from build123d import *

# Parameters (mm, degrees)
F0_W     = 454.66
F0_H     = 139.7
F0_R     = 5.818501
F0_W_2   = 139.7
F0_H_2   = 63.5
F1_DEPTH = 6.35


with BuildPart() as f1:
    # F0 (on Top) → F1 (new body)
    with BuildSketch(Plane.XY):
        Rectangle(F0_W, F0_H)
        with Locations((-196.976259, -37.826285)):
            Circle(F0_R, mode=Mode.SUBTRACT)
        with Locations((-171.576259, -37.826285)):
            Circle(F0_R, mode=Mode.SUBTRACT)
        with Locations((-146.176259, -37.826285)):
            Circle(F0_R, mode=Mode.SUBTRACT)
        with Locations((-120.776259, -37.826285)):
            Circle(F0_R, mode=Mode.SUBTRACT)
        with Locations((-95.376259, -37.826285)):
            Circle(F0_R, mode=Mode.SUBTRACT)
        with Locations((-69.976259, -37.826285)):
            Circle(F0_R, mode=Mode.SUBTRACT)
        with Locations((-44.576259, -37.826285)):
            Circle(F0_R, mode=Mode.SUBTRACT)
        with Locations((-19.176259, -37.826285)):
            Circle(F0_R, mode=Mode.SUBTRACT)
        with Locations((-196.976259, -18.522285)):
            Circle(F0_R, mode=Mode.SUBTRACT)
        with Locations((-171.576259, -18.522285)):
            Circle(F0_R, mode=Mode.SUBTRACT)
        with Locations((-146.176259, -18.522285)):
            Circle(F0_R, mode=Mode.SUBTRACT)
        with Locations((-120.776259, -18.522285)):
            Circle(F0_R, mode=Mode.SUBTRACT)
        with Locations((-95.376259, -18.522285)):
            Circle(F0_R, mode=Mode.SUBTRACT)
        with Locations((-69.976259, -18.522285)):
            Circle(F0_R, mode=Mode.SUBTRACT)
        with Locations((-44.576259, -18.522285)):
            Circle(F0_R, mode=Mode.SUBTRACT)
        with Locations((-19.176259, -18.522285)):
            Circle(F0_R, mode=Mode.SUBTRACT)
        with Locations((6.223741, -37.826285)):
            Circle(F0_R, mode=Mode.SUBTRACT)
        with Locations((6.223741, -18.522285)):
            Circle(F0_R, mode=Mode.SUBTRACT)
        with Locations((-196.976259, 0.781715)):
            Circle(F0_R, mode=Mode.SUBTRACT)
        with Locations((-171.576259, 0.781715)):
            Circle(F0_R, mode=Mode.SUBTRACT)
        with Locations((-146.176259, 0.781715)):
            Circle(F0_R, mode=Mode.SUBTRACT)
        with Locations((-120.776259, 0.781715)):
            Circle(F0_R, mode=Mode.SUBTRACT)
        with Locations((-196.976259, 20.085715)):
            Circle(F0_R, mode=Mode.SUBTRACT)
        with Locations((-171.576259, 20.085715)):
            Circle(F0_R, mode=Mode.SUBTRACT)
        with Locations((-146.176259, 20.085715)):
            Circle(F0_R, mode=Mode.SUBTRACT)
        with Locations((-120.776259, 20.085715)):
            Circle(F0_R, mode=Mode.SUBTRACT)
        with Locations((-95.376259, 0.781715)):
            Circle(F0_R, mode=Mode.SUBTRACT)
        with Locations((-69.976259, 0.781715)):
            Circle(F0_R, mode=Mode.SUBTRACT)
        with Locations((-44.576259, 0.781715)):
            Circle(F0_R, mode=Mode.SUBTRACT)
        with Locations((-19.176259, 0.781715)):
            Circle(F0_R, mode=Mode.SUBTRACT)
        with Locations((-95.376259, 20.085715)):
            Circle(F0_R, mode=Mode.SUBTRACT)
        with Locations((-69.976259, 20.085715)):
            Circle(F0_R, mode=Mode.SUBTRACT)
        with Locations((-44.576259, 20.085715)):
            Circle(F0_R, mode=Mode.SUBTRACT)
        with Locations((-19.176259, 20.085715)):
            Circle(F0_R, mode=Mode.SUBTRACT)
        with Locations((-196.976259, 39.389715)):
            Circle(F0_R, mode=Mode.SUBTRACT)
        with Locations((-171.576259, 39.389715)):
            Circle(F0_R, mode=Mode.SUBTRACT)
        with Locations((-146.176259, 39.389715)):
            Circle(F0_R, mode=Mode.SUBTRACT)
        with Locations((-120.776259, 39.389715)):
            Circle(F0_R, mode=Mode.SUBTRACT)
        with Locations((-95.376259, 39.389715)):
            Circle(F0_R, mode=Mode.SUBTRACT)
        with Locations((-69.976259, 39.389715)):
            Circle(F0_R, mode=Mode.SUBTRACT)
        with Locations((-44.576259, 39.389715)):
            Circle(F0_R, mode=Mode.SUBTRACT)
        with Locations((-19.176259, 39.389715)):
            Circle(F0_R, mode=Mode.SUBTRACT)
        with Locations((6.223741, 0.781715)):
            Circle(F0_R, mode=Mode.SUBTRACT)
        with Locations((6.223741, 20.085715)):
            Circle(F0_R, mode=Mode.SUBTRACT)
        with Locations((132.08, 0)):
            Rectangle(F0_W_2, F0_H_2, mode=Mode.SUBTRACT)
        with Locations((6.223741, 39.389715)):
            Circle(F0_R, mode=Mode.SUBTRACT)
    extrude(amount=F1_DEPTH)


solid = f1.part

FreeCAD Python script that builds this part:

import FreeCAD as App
import Part
import Sketcher

V = App.Vector
Q = App.Units.Quantity


def add_polygon(sketch, points):
    """Adds a closed chain of lines whose ends are joined by coincident constraints."""
    first, n = sketch.GeometryCount, len(points)
    for a, b in zip(points, points[1:] + points[:1]):
        sketch.addGeometry(Part.LineSegment(App.Vector(*a, 0), App.Vector(*b, 0)), False)
    for i in range(n):
        sketch.addConstraint(Sketcher.Constraint("Coincident", first + i, 2, first + (i + 1) % n, 1))

doc = App.newDocument("Part")
body = doc.addObject("PartDesign::Body", "Body")

# Sketch on XY plane
sketch1 = body.newObject("Sketcher::SketchObject", "Sketch")
sketch1.AttachmentSupport = (doc.getObject("XY_Plane"), [""])
sketch1.MapMode = "FlatFace"
add_polygon(sketch1, [(-227, 70), (-227, -70), (227, -70), (227, 70)])  # lines 0-3
sketch1.addGeometry(Part.Circle(V(-197, -38, 0), V(0, 0, 1), 6), False)  # 4
sketch1.addGeometry(Part.Circle(V(-172, -38, 0), V(0, 0, 1), 6), False)  # 5
sketch1.addGeometry(Part.Circle(V(-146, -38, 0), V(0, 0, 1), 6), False)  # 6
sketch1.addGeometry(Part.Circle(V(-121, -38, 0), V(0, 0, 1), 6), False)  # 7
sketch1.addGeometry(Part.Circle(V(-95, -38, 0), V(0, 0, 1), 6), False)  # 8
sketch1.addGeometry(Part.Circle(V(-70, -38, 0), V(0, 0, 1), 6), False)  # 9
sketch1.addGeometry(Part.Circle(V(-45, -38, 0), V(0, 0, 1), 6), False)  # 10
sketch1.addGeometry(Part.Circle(V(-19, -38, 0), V(0, 0, 1), 6), False)  # 11
sketch1.addGeometry(Part.Circle(V(-197, -19, 0), V(0, 0, 1), 6), False)  # 12
sketch1.addGeometry(Part.Circle(V(-172, -19, 0), V(0, 0, 1), 6), False)  # 13
sketch1.addGeometry(Part.Circle(V(-146, -19, 0), V(0, 0, 1), 6), False)  # 14
sketch1.addGeometry(Part.Circle(V(-121, -19, 0), V(0, 0, 1), 6), False)  # 15
sketch1.addGeometry(Part.Circle(V(-197, 1, 0), V(0, 0, 1), 6), False)  # 16
sketch1.addGeometry(Part.Circle(V(-172, 1, 0), V(0, 0, 1), 6), False)  # 17
sketch1.addGeometry(Part.Circle(V(-146, 1, 0), V(0, 0, 1), 6), False)  # 18
sketch1.addGeometry(Part.Circle(V(-121, 1, 0), V(0, 0, 1), 6), False)  # 19
sketch1.addGeometry(Part.Circle(V(-95, -19, 0), V(0, 0, 1), 6), False)  # 20
sketch1.addGeometry(Part.Circle(V(-70, -19, 0), V(0, 0, 1), 6), False)  # 21
sketch1.addGeometry(Part.Circle(V(-45, -19, 0), V(0, 0, 1), 6), False)  # 22
sketch1.addGeometry(Part.Circle(V(-19, -19, 0), V(0, 0, 1), 6), False)  # 23
sketch1.addGeometry(Part.Circle(V(-95, 1, 0), V(0, 0, 1), 6), False)  # 24
sketch1.addGeometry(Part.Circle(V(-70, 1, 0), V(0, 0, 1), 6), False)  # 25
sketch1.addGeometry(Part.Circle(V(-45, 1, 0), V(0, 0, 1), 6), False)  # 26
sketch1.addGeometry(Part.Circle(V(-19, 1, 0), V(0, 0, 1), 6), False)  # 27
sketch1.addGeometry(Part.Circle(V(6, -38, 0), V(0, 0, 1), 6), False)  # 28
sketch1.addGeometry(Part.Circle(V(6, -19, 0), V(0, 0, 1), 6), False)  # 29
sketch1.addGeometry(Part.Circle(V(6, 1, 0), V(0, 0, 1), 6), False)  # 30
add_polygon(sketch1, [(202, -32), (62, -32), (62, 32), (202, 32)])  # lines 31-34
sketch1.addGeometry(Part.Circle(V(-197, 20, 0), V(0, 0, 1), 6), False)  # 35
sketch1.addGeometry(Part.Circle(V(-172, 20, 0), V(0, 0, 1), 6), False)  # 36
sketch1.addGeometry(Part.Circle(V(-146, 20, 0), V(0, 0, 1), 6), False)  # 37
sketch1.addGeometry(Part.Circle(V(-121, 20, 0), V(0, 0, 1), 6), False)  # 38
sketch1.addGeometry(Part.Circle(V(-95, 20, 0), V(0, 0, 1), 6), False)  # 39
sketch1.addGeometry(Part.Circle(V(-70, 20, 0), V(0, 0, 1), 6), False)  # 40
sketch1.addGeometry(Part.Circle(V(-45, 20, 0), V(0, 0, 1), 6), False)  # 41
sketch1.addGeometry(Part.Circle(V(-19, 20, 0), V(0, 0, 1), 6), False)  # 42
sketch1.addGeometry(Part.Circle(V(-197, 39, 0), V(0, 0, 1), 6), False)  # 43
sketch1.addGeometry(Part.Circle(V(-172, 39, 0), V(0, 0, 1), 6), False)  # 44
sketch1.addGeometry(Part.Circle(V(-146, 39, 0), V(0, 0, 1), 6), False)  # 45
sketch1.addGeometry(Part.Circle(V(-121, 39, 0), V(0, 0, 1), 6), False)  # 46
sketch1.addGeometry(Part.Circle(V(-95, 39, 0), V(0, 0, 1), 6), False)  # 47
sketch1.addGeometry(Part.Circle(V(-70, 39, 0), V(0, 0, 1), 6), False)  # 48
sketch1.addGeometry(Part.Circle(V(-45, 39, 0), V(0, 0, 1), 6), False)  # 49
sketch1.addGeometry(Part.Circle(V(-19, 39, 0), V(0, 0, 1), 6), False)  # 50
sketch1.addGeometry(Part.Circle(V(6, 20, 0), V(0, 0, 1), 6), False)  # 51
sketch1.addGeometry(Part.Circle(V(6, 39, 0), V(0, 0, 1), 6), False)  # 52
sketch1.addConstraint(Sketcher.Constraint("Vertical", 0))
sketch1.addConstraint(Sketcher.Constraint("Horizontal", 1))
sketch1.addConstraint(Sketcher.Constraint("Vertical", 2))
sketch1.addConstraint(Sketcher.Constraint("Horizontal", 3))
sketch1.addConstraint(Sketcher.Constraint("Horizontal", 31))
sketch1.addConstraint(Sketcher.Constraint("Vertical", 32))
sketch1.addConstraint(Sketcher.Constraint("Horizontal", 33))
sketch1.addConstraint(Sketcher.Constraint("Vertical", 34))
sketch1.addConstraint(Sketcher.Constraint("Equal", 4, 5))
sketch1.addConstraint(Sketcher.Constraint("Equal", 5, 6))
sketch1.addConstraint(Sketcher.Constraint("Equal", 6, 7))
sketch1.addConstraint(Sketcher.Constraint("Equal", 7, 8))
sketch1.addConstraint(Sketcher.Constraint("Equal", 8, 9))
sketch1.addConstraint(Sketcher.Constraint("Equal", 9, 10))
sketch1.addConstraint(Sketcher.Constraint("Equal", 10, 11))
sketch1.addConstraint(Sketcher.Constraint("Equal", 11, 12))
sketch1.addConstraint(Sketcher.Constraint("Equal", 12, 13))
sketch1.addConstraint(Sketcher.Constraint("Equal", 13, 14))
sketch1.addConstraint(Sketcher.Constraint("Equal", 14, 15))
sketch1.addConstraint(Sketcher.Constraint("Equal", 15, 16))
sketch1.addConstraint(Sketcher.Constraint("Equal", 16, 17))
sketch1.addConstraint(Sketcher.Constraint("Equal", 17, 18))
sketch1.addConstraint(Sketcher.Constraint("Equal", 18, 19))
sketch1.addConstraint(Sketcher.Constraint("Equal", 19, 20))
sketch1.addConstraint(Sketcher.Constraint("Equal", 20, 21))
sketch1.addConstraint(Sketcher.Constraint("Equal", 21, 22))
sketch1.addConstraint(Sketcher.Constraint("Equal", 22, 23))
sketch1.addConstraint(Sketcher.Constraint("Equal", 23, 24))
sketch1.addConstraint(Sketcher.Constraint("Equal", 24, 25))
sketch1.addConstraint(Sketcher.Constraint("Equal", 25, 26))
sketch1.addConstraint(Sketcher.Constraint("Equal", 26, 27))
sketch1.addConstraint(Sketcher.Constraint("Equal", 27, 28))
sketch1.addConstraint(Sketcher.Constraint("Equal", 28, 29))
sketch1.addConstraint(Sketcher.Constraint("Equal", 29, 30))
sketch1.addConstraint(Sketcher.Constraint("Equal", 30, 35))
sketch1.addConstraint(Sketcher.Constraint("Equal", 35, 36))
sketch1.addConstraint(Sketcher.Constraint("Equal", 36, 37))
sketch1.addConstraint(Sketcher.Constraint("Equal", 37, 38))
sketch1.addConstraint(Sketcher.Constraint("Equal", 38, 39))
sketch1.addConstraint(Sketcher.Constraint("Equal", 39, 40))
sketch1.addConstraint(Sketcher.Constraint("Equal", 40, 41))
sketch1.addConstraint(Sketcher.Constraint("Equal", 41, 42))
sketch1.addConstraint(Sketcher.Constraint("Equal", 42, 43))
sketch1.addConstraint(Sketcher.Constraint("Equal", 43, 44))
sketch1.addConstraint(Sketcher.Constraint("Equal", 44, 45))
sketch1.addConstraint(Sketcher.Constraint("Equal", 45, 46))
sketch1.addConstraint(Sketcher.Constraint("Equal", 46, 47))
sketch1.addConstraint(Sketcher.Constraint("Equal", 47, 48))
sketch1.addConstraint(Sketcher.Constraint("Equal", 48, 49))
sketch1.addConstraint(Sketcher.Constraint("Equal", 49, 50))
sketch1.addConstraint(Sketcher.Constraint("Equal", 50, 51))
sketch1.addConstraint(Sketcher.Constraint("Equal", 51, 52))
sketch1.addConstraint(Sketcher.Constraint("Symmetric", 0, 2, 2, 2, -1, 1))
sketch1.addConstraint(Sketcher.Constraint("Horizontal", 4, 3, 5, 3))
sketch1.addConstraint(Sketcher.Constraint("Horizontal", 5, 3, 6, 3))
sketch1.addConstraint(Sketcher.Constraint("Horizontal", 6, 3, 7, 3))
sketch1.addConstraint(Sketcher.Constraint("Horizontal", 7, 3, 8, 3))
sketch1.addConstraint(Sketcher.Constraint("Horizontal", 8, 3, 9, 3))
sketch1.addConstraint(Sketcher.Constraint("Horizontal", 9, 3, 10, 3))
sketch1.addConstraint(Sketcher.Constraint("Horizontal", 10, 3, 11, 3))
sketch1.addConstraint(Sketcher.Constraint("Horizontal", 12, 3, 13, 3))
sketch1.addConstraint(Sketcher.Constraint("Horizontal", 13, 3, 14, 3))
sketch1.addConstraint(Sketcher.Constraint("Horizontal", 14, 3, 15, 3))
sketch1.addConstraint(Sketcher.Constraint("Horizontal", 16, 3, 17, 3))
sketch1.addConstraint(Sketcher.Constraint("Horizontal", 17, 3, 18, 3))
sketch1.addConstraint(Sketcher.Constraint("Horizontal", 18, 3, 19, 3))
sketch1.addConstraint(Sketcher.Constraint("Horizontal", 15, 3, 20, 3))
sketch1.addConstraint(Sketcher.Constraint("Horizontal", 20, 3, 21, 3))
sketch1.addConstraint(Sketcher.Constraint("Horizontal", 21, 3, 22, 3))
sketch1.addConstraint(Sketcher.Constraint("Horizontal", 22, 3, 23, 3))
sketch1.addConstraint(Sketcher.Constraint("Horizontal", 19, 3, 24, 3))
sketch1.addConstraint(Sketcher.Constraint("Horizontal", 24, 3, 25, 3))
sketch1.addConstraint(Sketcher.Constraint("Horizontal", 25, 3, 26, 3))
sketch1.addConstraint(Sketcher.Constraint("Horizontal", 26, 3, 27, 3))
sketch1.addConstraint(Sketcher.Constraint("Horizontal", 11, 3, 28, 3))
sketch1.addConstraint(Sketcher.Constraint("Horizontal", 23, 3, 29, 3))
sketch1.addConstraint(Sketcher.Constraint("Horizontal", 27, 3, 30, 3))
sketch1.addConstraint(Sketcher.Constraint("Horizontal", 35, 3, 36, 3))
sketch1.addConstraint(Sketcher.Constraint("Horizontal", 36, 3, 37, 3))
sketch1.addConstraint(Sketcher.Constraint("Horizontal", 37, 3, 38, 3))
sketch1.addConstraint(Sketcher.Constraint("Horizontal", 38, 3, 39, 3))
sketch1.addConstraint(Sketcher.Constraint("Horizontal", 39, 3, 40, 3))
sketch1.addConstraint(Sketcher.Constraint("Horizontal", 40, 3, 41, 3))
sketch1.addConstraint(Sketcher.Constraint("Horizontal", 41, 3, 42, 3))
sketch1.addConstraint(Sketcher.Constraint("Horizontal", 43, 3, 44, 3))
sketch1.addConstraint(Sketcher.Constraint("Horizontal", 44, 3, 45, 3))
sketch1.addConstraint(Sketcher.Constraint("Horizontal", 45, 3, 46, 3))
sketch1.addConstraint(Sketcher.Constraint("Horizontal", 46, 3, 47, 3))
sketch1.addConstraint(Sketcher.Constraint("Horizontal", 47, 3, 48, 3))
sketch1.addConstraint(Sketcher.Constraint("Horizontal", 48, 3, 49, 3))
sketch1.addConstraint(Sketcher.Constraint("Horizontal", 49, 3, 50, 3))
sketch1.addConstraint(Sketcher.Constraint("Horizontal", 42, 3, 51, 3))
sketch1.addConstraint(Sketcher.Constraint("Horizontal", 50, 3, 52, 3))
sketch1.addConstraint(Sketcher.Constraint("Vertical", 4, 3, 12, 3))
sketch1.addConstraint(Sketcher.Constraint("Vertical", 5, 3, 13, 3))
sketch1.addConstraint(Sketcher.Constraint("Vertical", 6, 3, 14, 3))
sketch1.addConstraint(Sketcher.Constraint("Vertical", 7, 3, 15, 3))
sketch1.addConstraint(Sketcher.Constraint("Vertical", 12, 3, 16, 3))
sketch1.addConstraint(Sketcher.Constraint("Vertical", 13, 3, 17, 3))
sketch1.addConstraint(Sketcher.Constraint("Vertical", 14, 3, 18, 3))
sketch1.addConstraint(Sketcher.Constraint("Vertical", 15, 3, 19, 3))
sketch1.addConstraint(Sketcher.Constraint("Vertical", 8, 3, 20, 3))
sketch1.addConstraint(Sketcher.Constraint("Vertical", 9, 3, 21, 3))
sketch1.addConstraint(Sketcher.Constraint("Vertical", 10, 3, 22, 3))
sketch1.addConstraint(Sketcher.Constraint("Vertical", 11, 3, 23, 3))
sketch1.addConstraint(Sketcher.Constraint("Vertical", 20, 3, 24, 3))
sketch1.addConstraint(Sketcher.Constraint("Vertical", 21, 3, 25, 3))
sketch1.addConstraint(Sketcher.Constraint("Vertical", 22, 3, 26, 3))
sketch1.addConstraint(Sketcher.Constraint("Vertical", 23, 3, 27, 3))
sketch1.addConstraint(Sketcher.Constraint("Vertical", 28, 3, 29, 3))
sketch1.addConstraint(Sketcher.Constraint("Vertical", 29, 3, 30, 3))
sketch1.addConstraint(Sketcher.Constraint("Vertical", 16, 3, 35, 3))
sketch1.addConstraint(Sketcher.Constraint("Vertical", 17, 3, 36, 3))
sketch1.addConstraint(Sketcher.Constraint("Vertical", 18, 3, 37, 3))
sketch1.addConstraint(Sketcher.Constraint("Vertical", 19, 3, 38, 3))
sketch1.addConstraint(Sketcher.Constraint("Vertical", 24, 3, 39, 3))
sketch1.addConstraint(Sketcher.Constraint("Vertical", 25, 3, 40, 3))
sketch1.addConstraint(Sketcher.Constraint("Vertical", 26, 3, 41, 3))
sketch1.addConstraint(Sketcher.Constraint("Vertical", 27, 3, 42, 3))
sketch1.addConstraint(Sketcher.Constraint("Vertical", 35, 3, 43, 3))
sketch1.addConstraint(Sketcher.Constraint("Vertical", 36, 3, 44, 3))
sketch1.addConstraint(Sketcher.Constraint("Vertical", 37, 3, 45, 3))
sketch1.addConstraint(Sketcher.Constraint("Vertical", 38, 3, 46, 3))
sketch1.addConstraint(Sketcher.Constraint("Vertical", 39, 3, 47, 3))
sketch1.addConstraint(Sketcher.Constraint("Vertical", 40, 3, 48, 3))
sketch1.addConstraint(Sketcher.Constraint("Vertical", 41, 3, 49, 3))
sketch1.addConstraint(Sketcher.Constraint("Vertical", 42, 3, 50, 3))
sketch1.addConstraint(Sketcher.Constraint("Vertical", 30, 3, 51, 3))
sketch1.addConstraint(Sketcher.Constraint("Vertical", 51, 3, 52, 3))
sketch1.addConstraint(Sketcher.Constraint("Equal", 33, 0))
sketch1.addConstraint(Sketcher.Constraint("DistanceX", 1, 1, 1, 2, Q("17.9 in")))
sketch1.addConstraint(Sketcher.Constraint("DistanceX", 31, 2, 31, 1, Q("5.5 in")))
sketch1.addConstraint(Sketcher.Constraint("DistanceY", 32, 1, 32, 2, Q("2.5 in")))
sketch1.addConstraint(Sketcher.Constraint("DistanceX", 4, 3, 5, 3, Q("1 in")))
sketch1.addConstraint(Sketcher.Constraint("DistanceX", 5, 3, 6, 3, Q("1 in")))
sketch1.addConstraint(Sketcher.Constraint("DistanceX", 6, 3, 7, 3, Q("1 in")))
sketch1.addConstraint(Sketcher.Constraint("DistanceX", 7, 3, 8, 3, Q("1 in")))
sketch1.addConstraint(Sketcher.Constraint("DistanceX", 8, 3, 9, 3, Q("1 in")))
sketch1.addConstraint(Sketcher.Constraint("DistanceX", 9, 3, 10, 3, Q("1 in")))
sketch1.addConstraint(Sketcher.Constraint("DistanceX", 10, 3, 11, 3, Q("1 in")))
sketch1.addConstraint(Sketcher.Constraint("DistanceX", 11, 3, 28, 3, Q("1 in")))
sketch1.addConstraint(Sketcher.Constraint("DistanceX", 33, 2, 2, 2, Q("1 in")))
sketch1.addConstraint(Sketcher.Constraint("DistanceY", 1, 2, 33, 2, Q("4 in")))
sketch1.addConstraint(Sketcher.Constraint("DistanceY", 4, 3, 12, 3, Q("0.76 in")))
sketch1.addConstraint(Sketcher.Constraint("DistanceY", 12, 3, 16, 3, Q("0.76 in")))
sketch1.addConstraint(Sketcher.Constraint("DistanceY", 16, 3, 35, 3, Q("0.76 in")))
sketch1.addConstraint(Sketcher.Constraint("DistanceY", 35, 3, 43, 3, Q("0.76 in")))
sketch1.addConstraint(Sketcher.Constraint("Diameter", 4, 11.637002))
sketch1.addConstraint(Sketcher.Constraint("DistanceX", 4, 3, -1, 1, 196.976259))
sketch1.addConstraint(Sketcher.Constraint("DistanceY", 4, 3, -1, 1, 37.826285))
pad1 = body.newObject("PartDesign::Pad", "Pad")
pad1.Profile = sketch1
pad1.Length = Q("0.25 in")

doc.recompute()
